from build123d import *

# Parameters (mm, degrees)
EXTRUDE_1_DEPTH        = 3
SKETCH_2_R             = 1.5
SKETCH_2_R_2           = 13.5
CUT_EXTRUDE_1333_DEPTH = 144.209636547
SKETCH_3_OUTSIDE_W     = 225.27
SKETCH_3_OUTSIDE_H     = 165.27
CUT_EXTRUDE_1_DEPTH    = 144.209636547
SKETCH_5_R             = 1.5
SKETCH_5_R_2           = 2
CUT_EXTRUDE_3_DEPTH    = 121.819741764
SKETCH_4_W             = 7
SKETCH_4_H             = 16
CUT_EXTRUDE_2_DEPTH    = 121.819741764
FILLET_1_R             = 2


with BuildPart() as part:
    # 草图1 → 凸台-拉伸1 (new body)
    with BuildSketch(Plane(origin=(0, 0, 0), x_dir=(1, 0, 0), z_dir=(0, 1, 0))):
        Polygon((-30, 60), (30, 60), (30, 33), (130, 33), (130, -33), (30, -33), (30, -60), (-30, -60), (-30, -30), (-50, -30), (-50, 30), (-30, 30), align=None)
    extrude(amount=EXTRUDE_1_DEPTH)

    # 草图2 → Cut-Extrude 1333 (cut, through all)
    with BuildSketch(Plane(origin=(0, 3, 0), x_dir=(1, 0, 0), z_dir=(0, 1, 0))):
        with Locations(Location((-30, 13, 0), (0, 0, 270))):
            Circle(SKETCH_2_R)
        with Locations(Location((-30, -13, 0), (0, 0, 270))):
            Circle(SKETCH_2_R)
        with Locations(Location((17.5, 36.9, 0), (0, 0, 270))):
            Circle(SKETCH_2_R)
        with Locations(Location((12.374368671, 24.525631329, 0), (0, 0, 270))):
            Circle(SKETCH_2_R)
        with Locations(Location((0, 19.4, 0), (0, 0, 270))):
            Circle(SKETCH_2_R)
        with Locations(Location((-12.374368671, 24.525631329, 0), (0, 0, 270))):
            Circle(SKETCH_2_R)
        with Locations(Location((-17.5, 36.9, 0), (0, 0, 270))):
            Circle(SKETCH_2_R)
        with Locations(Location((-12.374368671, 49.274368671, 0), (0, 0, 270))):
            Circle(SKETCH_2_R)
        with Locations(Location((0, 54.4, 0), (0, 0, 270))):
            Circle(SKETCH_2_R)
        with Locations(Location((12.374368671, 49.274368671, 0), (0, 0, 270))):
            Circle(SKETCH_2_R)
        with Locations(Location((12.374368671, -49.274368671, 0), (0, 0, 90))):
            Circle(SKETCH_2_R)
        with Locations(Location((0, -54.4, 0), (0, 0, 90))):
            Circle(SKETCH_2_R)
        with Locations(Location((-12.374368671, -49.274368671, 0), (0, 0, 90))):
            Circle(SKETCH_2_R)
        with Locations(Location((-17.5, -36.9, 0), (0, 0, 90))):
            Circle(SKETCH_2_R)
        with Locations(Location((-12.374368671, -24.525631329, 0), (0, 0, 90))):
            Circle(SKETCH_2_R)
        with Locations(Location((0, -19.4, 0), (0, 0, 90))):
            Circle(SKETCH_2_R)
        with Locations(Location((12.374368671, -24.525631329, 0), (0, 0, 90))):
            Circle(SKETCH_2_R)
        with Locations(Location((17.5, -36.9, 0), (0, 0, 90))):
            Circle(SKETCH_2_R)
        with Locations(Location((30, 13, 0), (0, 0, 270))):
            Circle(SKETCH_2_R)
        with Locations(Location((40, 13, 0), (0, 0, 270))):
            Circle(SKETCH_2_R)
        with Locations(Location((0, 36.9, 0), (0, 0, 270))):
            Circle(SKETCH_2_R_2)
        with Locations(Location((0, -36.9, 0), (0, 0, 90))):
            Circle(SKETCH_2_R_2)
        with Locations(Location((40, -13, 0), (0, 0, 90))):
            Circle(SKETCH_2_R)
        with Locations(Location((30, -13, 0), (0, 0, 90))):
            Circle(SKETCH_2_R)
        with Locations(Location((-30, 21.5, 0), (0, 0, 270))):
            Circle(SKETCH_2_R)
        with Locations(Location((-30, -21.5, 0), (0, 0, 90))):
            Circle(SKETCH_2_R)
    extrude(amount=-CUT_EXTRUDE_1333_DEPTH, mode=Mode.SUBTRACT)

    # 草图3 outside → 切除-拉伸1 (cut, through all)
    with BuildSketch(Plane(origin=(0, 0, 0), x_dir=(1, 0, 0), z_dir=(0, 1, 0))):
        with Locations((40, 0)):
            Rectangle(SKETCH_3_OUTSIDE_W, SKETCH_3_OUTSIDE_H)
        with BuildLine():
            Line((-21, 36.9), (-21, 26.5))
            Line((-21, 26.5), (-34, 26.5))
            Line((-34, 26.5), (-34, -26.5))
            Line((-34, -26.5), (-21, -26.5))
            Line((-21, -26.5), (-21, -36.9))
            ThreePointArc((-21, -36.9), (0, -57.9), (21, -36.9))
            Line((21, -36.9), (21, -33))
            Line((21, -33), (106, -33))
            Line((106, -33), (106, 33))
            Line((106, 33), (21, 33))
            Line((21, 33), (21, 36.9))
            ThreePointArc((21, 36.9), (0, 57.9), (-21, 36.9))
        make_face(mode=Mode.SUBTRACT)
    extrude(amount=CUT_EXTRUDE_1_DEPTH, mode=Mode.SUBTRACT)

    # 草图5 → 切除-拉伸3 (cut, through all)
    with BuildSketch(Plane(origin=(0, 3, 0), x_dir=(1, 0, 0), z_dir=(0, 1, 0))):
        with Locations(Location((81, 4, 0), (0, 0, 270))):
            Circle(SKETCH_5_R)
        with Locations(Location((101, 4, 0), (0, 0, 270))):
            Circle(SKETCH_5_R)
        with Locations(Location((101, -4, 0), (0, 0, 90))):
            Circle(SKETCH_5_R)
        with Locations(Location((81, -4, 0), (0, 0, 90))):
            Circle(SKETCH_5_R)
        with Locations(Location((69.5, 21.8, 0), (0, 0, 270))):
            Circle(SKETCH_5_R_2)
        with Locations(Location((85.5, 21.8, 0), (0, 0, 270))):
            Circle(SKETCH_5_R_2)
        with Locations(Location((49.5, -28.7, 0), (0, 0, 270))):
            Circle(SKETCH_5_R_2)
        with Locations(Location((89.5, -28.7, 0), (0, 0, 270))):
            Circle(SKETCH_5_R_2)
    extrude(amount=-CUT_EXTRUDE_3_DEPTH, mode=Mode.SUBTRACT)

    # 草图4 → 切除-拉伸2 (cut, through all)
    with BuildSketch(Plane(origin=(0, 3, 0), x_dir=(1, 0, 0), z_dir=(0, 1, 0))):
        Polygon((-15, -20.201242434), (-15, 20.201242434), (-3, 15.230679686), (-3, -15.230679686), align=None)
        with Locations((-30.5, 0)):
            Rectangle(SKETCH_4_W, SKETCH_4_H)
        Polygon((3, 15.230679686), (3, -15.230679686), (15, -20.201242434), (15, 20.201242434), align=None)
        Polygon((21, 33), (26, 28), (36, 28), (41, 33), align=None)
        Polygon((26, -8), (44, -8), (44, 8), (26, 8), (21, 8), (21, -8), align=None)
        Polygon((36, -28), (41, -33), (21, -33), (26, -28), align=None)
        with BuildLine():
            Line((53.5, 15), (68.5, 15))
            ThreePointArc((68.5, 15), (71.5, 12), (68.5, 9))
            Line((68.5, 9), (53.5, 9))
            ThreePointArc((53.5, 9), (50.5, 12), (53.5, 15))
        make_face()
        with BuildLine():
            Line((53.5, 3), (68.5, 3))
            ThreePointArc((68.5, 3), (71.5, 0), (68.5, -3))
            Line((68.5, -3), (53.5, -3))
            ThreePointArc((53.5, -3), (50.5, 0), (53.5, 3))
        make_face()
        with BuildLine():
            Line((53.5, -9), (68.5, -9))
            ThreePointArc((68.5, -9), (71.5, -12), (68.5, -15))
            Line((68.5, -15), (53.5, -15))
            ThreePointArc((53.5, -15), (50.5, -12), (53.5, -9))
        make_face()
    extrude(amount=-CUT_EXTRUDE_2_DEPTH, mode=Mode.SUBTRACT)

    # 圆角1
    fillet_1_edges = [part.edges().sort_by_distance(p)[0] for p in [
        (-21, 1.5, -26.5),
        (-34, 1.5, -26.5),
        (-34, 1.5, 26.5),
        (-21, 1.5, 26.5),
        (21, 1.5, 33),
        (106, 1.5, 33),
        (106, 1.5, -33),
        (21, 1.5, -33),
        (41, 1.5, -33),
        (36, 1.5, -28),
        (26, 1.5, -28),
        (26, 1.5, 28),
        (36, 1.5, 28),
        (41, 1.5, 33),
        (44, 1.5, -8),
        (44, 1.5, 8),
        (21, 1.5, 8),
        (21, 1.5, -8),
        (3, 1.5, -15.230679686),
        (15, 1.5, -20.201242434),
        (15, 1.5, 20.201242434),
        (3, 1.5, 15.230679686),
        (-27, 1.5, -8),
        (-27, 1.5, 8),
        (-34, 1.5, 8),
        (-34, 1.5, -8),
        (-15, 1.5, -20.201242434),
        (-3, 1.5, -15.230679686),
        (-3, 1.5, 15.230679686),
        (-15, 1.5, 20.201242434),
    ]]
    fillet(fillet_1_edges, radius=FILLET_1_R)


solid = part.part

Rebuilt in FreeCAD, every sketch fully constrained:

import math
import FreeCAD as App
import Part
import Sketcher

V = App.Vector
Q = App.Units.Quantity


def edges_at(feature, points):
    """Names of the edges that pass closest to the given points."""
    edges = feature.Shape.Edges
    near = lambda p: min(range(len(edges)), key=lambda i: edges[i].distToShape(Part.Vertex(*p))[0])
    return sorted({f"Edge{near(p) + 1}" for p in points})


def add_polygon(sketch, points):
    """Adds a closed chain of lines whose ends are joined by coincident constraints."""
    first, n = sketch.GeometryCount, len(points)
    for a, b in zip(points, points[1:] + points[:1]):
        sketch.addGeometry(Part.LineSegment(App.Vector(*a, 0), App.Vector(*b, 0)), False)
    for i in range(n):
        sketch.addConstraint(Sketcher.Constraint("Coincident", first + i, 2, first + (i + 1) % n, 1))

doc = App.newDocument("Part")
body = doc.addObject("PartDesign::Body", "Body")

sketch1 = body.newObject("Sketcher::SketchObject", "Sketch")
sketch1.AttachmentSupport = (doc.getObject("XZ_Plane"), [""])
sketch1.MapMode = "FlatFace"
add_polygon(sketch1, [(30, -60), (-30, -60), (-30, -30), (-50, -30), (-50, 30), (-30, 30), (-30, 60), (30, 60), (30, 33), (130, 33), (130, -33), (30, -33)])
sketch1.addConstraint(Sketcher.Constraint("Horizontal", 0))
sketch1.addConstraint(Sketcher.Constraint("Vertical", 1))
sketch1.addConstraint(Sketcher.Constraint("Horizontal", 2))
sketch1.addConstraint(Sketcher.Constraint("Vertical", 3))
sketch1.addConstraint(Sketcher.Constraint("Horizontal", 4))
sketch1.addConstraint(Sketcher.Constraint("Vertical", 5))
sketch1.addConstraint(Sketcher.Constraint("Horizontal", 6))
sketch1.addConstraint(Sketcher.Constraint("Vertical", 7))
sketch1.addConstraint(Sketcher.Constraint("Horizontal", 8))
sketch1.addConstraint(Sketcher.Constraint("Vertical", 9))
sketch1.addConstraint(Sketcher.Constraint("Horizontal", 10))
sketch1.addConstraint(Sketcher.Constraint("Vertical", 11))
sketch1.addConstraint(Sketcher.Constraint("Symmetric", 0, 2, 6, 2, -1, 1))
sketch1.addConstraint(Sketcher.Constraint("Symmetric", 1, 2, 4, 2, -1))
sketch1.addConstraint(Sketcher.Constraint("Symmetric", 7, 2, 10, 2, -1))
sketch1.addConstraint(Sketcher.Constraint("Equal", 6, 3))
sketch1.addConstraint(Sketcher.Constraint("DistanceX", 0, 2, 0, 1, 60.0))
sketch1.addConstraint(Sketcher.Constraint("DistanceX", 2, 2, 2, 1, 20.0))
sketch1.addConstraint(Sketcher.Constraint("DistanceX", 8, 1, 8, 2, 100.0))
sketch1.addConstraint(Sketcher.Constraint("DistanceY", 1, 1, 1, 2, 30.0))
sketch1.addConstraint(Sketcher.Constraint("DistanceY", 7, 2, 7, 1, 27.0))
pad1 = body.newObject("PartDesign::Pad", "Pad")
pad1.Profile = sketch1
pad1.Length = 3
pad1.Reversed = True

sketch2 = body.newObject("Sketcher::SketchObject", "Sketch001")
sketch2.AttachmentSupport = (doc.getObject("XZ_Plane"), [""])
sketch2.MapMode = "FlatFace"
sketch2.AttachmentOffset = App.Placement(V(0, 0, -3), App.Rotation())
sketch2.addGeometry(Part.Circle(V(-30, -13, 0), V(0, 0, 1), 1.5), False)
sketch2.addGeometry(Part.Circle(V(-30, 13, 0), V(0, 0, 1), 1.5), False)
sketch2.addGeometry(Part.Circle(V(17.5, -36.9, 0), V(0, 0, 1), 1.5), False)
sketch2.addGeometry(Part.Circle(V(12.4, -24.5, 0), V(0, 0, 1), 1.5), False)
sketch2.addGeometry(Part.Circle(V(0, -19.4, 0), V(0, 0, 1), 1.5), False)
sketch2.addGeometry(Part.Circle(V(-12.4, -24.5, 0), V(0, 0, 1), 1.5), False)
sketch2.addGeometry(Part.Circle(V(-17.5, -36.9, 0), V(0, 0, 1), 1.5), False)
sketch2.addGeometry(Part.Circle(V(-12.4, -49.3, 0), V(0, 0, 1), 1.5), False)
sketch2.addGeometry(Part.Circle(V(0, -54.4, 0), V(0, 0, 1), 1.5), False)
sketch2.addGeometry(Part.Circle(V(12.4, -49.3, 0), V(0, 0, 1), 1.5), False)
sketch2.addGeometry(Part.Circle(V(12.4, 49.3, 0), V(0, 0, 1), 1.5), False)
sketch2.addGeometry(Part.Circle(V(0, 54.4, 0), V(0, 0, 1), 1.5), False)
sketch2.addGeometry(Part.Circle(V(-12.4, 49.3, 0), V(0, 0, 1), 1.5), False)
sketch2.addGeometry(Part.Circle(V(-17.5, 36.9, 0), V(0, 0, 1), 1.5), False)
sketch2.addGeometry(Part.Circle(V(-12.4, 24.5, 0), V(0, 0, 1), 1.5), False)
sketch2.addGeometry(Part.Circle(V(0, 19.4, 0), V(0, 0, 1), 1.5), False)
sketch2.addGeometry(Part.Circle(V(12.4, 24.5, 0), V(0, 0, 1), 1.5), False)
sketch2.addGeometry(Part.Circle(V(17.5, 36.9, 0), V(0, 0, 1), 1.5), False)
sketch2.addGeometry(Part.Circle(V(30, -13, 0), V(0, 0, 1), 1.5), False)
sketch2.addGeometry(Part.Circle(V(40, -13, 0), V(0, 0, 1), 1.5), False)
sketch2.addGeometry(Part.Circle(V(0, -36.9, 0), V(0, 0, 1), 13.5), False)
sketch2.addGeometry(Part.Circle(V(0, 36.9, 0), V(0, 0, 1), 13.5), False)
sketch2.addGeometry(Part.Circle(V(40, 13, 0), V(0, 0, 1), 1.5), False)
sketch2.addGeometry(Part.Circle(V(30, 13, 0), V(0, 0, 1), 1.5), False)
sketch2.addGeometry(Part.Circle(V(-30, -21.5, 0), V(0, 0, 1), 1.5), False)
sketch2.addGeometry(Part.Circle(V(-30, 21.5, 0), V(0, 0, 1), 1.5), False)
sketch2.addConstraint(Sketcher.Constraint("Equal", 0, 1))
sketch2.addConstraint(Sketcher.Constraint("Equal", 1, 2))
sketch2.addConstraint(Sketcher.Constraint("Equal", 2, 3))
sketch2.addConstraint(Sketcher.Constraint("Equal", 3, 4))
sketch2.addConstraint(Sketcher.Constraint("Equal", 4, 5))
sketch2.addConstraint(Sketcher.Constraint("Equal", 5, 6))
sketch2.addConstraint(Sketcher.Constraint("Equal", 6, 7))
sketch2.addConstraint(Sketcher.Constraint("Equal", 7, 8))
sketch2.addConstraint(Sketcher.Constraint("Equal", 8, 9))
sketch2.addConstraint(Sketcher.Constraint("Equal", 9, 10))
sketch2.addConstraint(Sketcher.Constraint("Equal", 10, 11))
sketch2.addConstraint(Sketcher.Constraint("Equal", 11, 12))
sketch2.addConstraint(Sketcher.Constraint("Equal", 12, 13))
sketch2.addConstraint(Sketcher.Constraint("Equal", 13, 14))
sketch2.addConstraint(Sketcher.Constraint("Equal", 14, 15))
sketch2.addConstraint(Sketcher.Constraint("Equal", 15, 16))
sketch2.addConstraint(Sketcher.Constraint("Equal", 16, 17))
sketch2.addConstraint(Sketcher.Constraint("Equal", 17, 18))
sketch2.addConstraint(Sketcher.Constraint("Equal", 18, 19))
sketch2.addConstraint(Sketcher.Constraint("Equal", 20, 21))
sketch2.addConstraint(Sketcher.Constraint("Equal", 19, 22))
sketch2.addConstraint(Sketcher.Constraint("Equal", 22, 23))
sketch2.addConstraint(Sketcher.Constraint("Equal", 23, 24))
sketch2.addConstraint(Sketcher.Constraint("Equal", 24, 25))
sketch2.addConstraint(Sketcher.Constraint("Symmetric", 7, 3, 10, 3, -1, 1))
sketch2.addConstraint(Sketcher.Constraint("Symmetric", 8, 3, 11, 3, -1, 1))
sketch2.addConstraint(Sketcher.Constraint("Symmetric", 9, 3, 12, 3, -1, 1))
sketch2.addConstraint(Sketcher.Constraint("Symmetric", 2, 3, 13, 3, -1, 1))
sketch2.addConstraint(Sketcher.Constraint("Symmetric", 3, 3, 14, 3, -1, 1))
sketch2.addConstraint(Sketcher.Constraint("Symmetric", 4, 3, 15, 3, -1, 1))
sketch2.addConstraint(Sketcher.Constraint("Symmetric", 5, 3, 16, 3, -1, 1))
sketch2.addConstraint(Sketcher.Constraint("Symmetric", 6, 3, 17, 3, -1, 1))
sketch2.addConstraint(Sketcher.Constraint("Symmetric", 1, 3, 18, 3, -1, 1))
sketch2.addConstraint(Sketcher.Constraint("Symmetric", 20, 3, 21, 3, -1, 1))
sketch2.addConstraint(Sketcher.Constraint("Symmetric", 0, 3, 23, 3, -1, 1))
sketch2.addConstraint(Sketcher.Constraint("Symmetric", 3, 3, 5, 3, -2))
sketch2.addConstraint(Sketcher.Constraint("Symmetric", 2, 3, 6, 3, -2))
sketch2.addConstraint(Sketcher.Constraint("Symmetric", 7, 3, 9, 3, -2))
sketch2.addConstraint(Sketcher.Constraint("Symmetric", 0, 3, 18, 3, -2))
sketch2.addConstraint(Sketcher.Constraint("Symmetric", 19, 3, 22, 3, -1))
sketch2.addConstraint(Sketcher.Constraint("Symmetric", 24, 3, 25, 3, -1))
sketch2.addConstraint(Sketcher.Constraint("PointOnObject", 4, 3, -2))
sketch2.addConstraint(Sketcher.Constraint("PointOnObject", 8, 3, -2))
sketch2.addConstraint(Sketcher.Constraint("PointOnObject", 20, 3, -2))
sketch2.addConstraint(Sketcher.Constraint("Horizontal", 18, 3, 19, 3))
sketch2.addConstraint(Sketcher.Constraint("Horizontal", 6, 3, 20, 3))
sketch2.addConstraint(Sketcher.Constraint("Vertical", 5, 3, 7, 3))
sketch2.addConstraint(Sketcher.Constraint("Vertical", 1, 3, 24, 3))
sketch2.addConstraint(Sketcher.Constraint("Diameter", 0, 3.0))
sketch2.addConstraint(Sketcher.Constraint("Diameter", 20, 27.0))
sketch2.addConstraint(Sketcher.Constraint("DistanceX", 0, 3, -1, 1, 30.0))
sketch2.addConstraint(Sketcher.Constraint("DistanceY", 0, 3, -1, 1, 13.0))
sketch2.addConstraint(Sketcher.Constraint("DistanceX", -1, 1, 19, 3, 40.0))
sketch2.addConstraint(Sketcher.Constraint("DistanceX", 6, 3, 2, 3, 35.0))
sketch2.addConstraint(Sketcher.Constraint("DistanceY", 2, 3, -1, 1, 36.9))
sketch2.addConstraint(Sketcher.Constraint("DistanceY", 4, 3, -1, 1, 19.4))
sketch2.addConstraint(Sketcher.Constraint("DistanceY", 8, 3, -1, 1, 54.4))
sketch2.addConstraint(Sketcher.Constraint("DistanceY", 24, 3, -1, 1, 21.5))
sketch2.addConstraint(Sketcher.Constraint("DistanceY", 3, 3, 10, 3, 73.8))
sketch2.addConstraint(Sketcher.Constraint("DistanceX", -1, 1, 3, 3, 12.374369))
sketch2.addConstraint(Sketcher.Constraint("DistanceY", 3, 3, -1, 1, 24.525631))
pocket1 = body.newObject("PartDesign::Pocket", "Pocket")
pocket1.Profile = sketch2
pocket1.Type = "ThroughAll"
pocket1.Reversed = True

sketch3 = body.newObject("Sketcher::SketchObject", "Sketch002")
sketch3.AttachmentSupport = (doc.getObject("XZ_Plane"), [""])
sketch3.MapMode = "FlatFace"
add_polygon(sketch3, [(-72.6, -82.6), (-72.6, 82.6), (152.6, 82.6), (152.6, -82.6)])
sketch3.addGeometry(Part.LineSegment(V(-21, -26.5, 0), V(-21, -36.9, 0)), False)
sketch3.addGeometry(Part.ArcOfCircle(Part.Circle(V(0, -36.9, 0), V(0, 0, 1), 21), math.radians(180), math.radians(360)), False)
sketch3.addGeometry(Part.LineSegment(V(21, -36.9, 0), V(21, -33, 0)), False)
sketch3.addGeometry(Part.LineSegment(V(21, -33, 0), V(106, -33, 0)), False)
sketch3.addGeometry(Part.LineSegment(V(106, -33, 0), V(106, 33, 0)), False)
sketch3.addGeometry(Part.LineSegment(V(106, 33, 0), V(21, 33, 0)), False)
sketch3.addGeometry(Part.LineSegment(V(21, 33, 0), V(21, 36.9, 0)), False)
sketch3.addGeometry(Part.ArcOfCircle(Part.Circle(V(0, 36.9, 0), V(0, 0, 1), 21), math.radians(0), math.radians(180)), False)
sketch3.addGeometry(Part.LineSegment(V(-21, 36.9, 0), V(-21, 26.5, 0)), False)
sketch3.addGeometry(Part.LineSegment(V(-21, 26.5, 0), V(-34, 26.5, 0)), False)
sketch3.addGeometry(Part.LineSegment(V(-34, 26.5, 0), V(-34, -26.5, 0)), False)
sketch3.addGeometry(Part.LineSegment(V(-34, -26.5, 0), V(-21, -26.5, 0)), False)
sketch3.addConstraint(Sketcher.Constraint("Tangent", 4, 2, 5, 1))
sketch3.addConstraint(Sketcher.Constraint("Tangent", 5, 2, 6, 1))
sketch3.addConstraint(Sketcher.Constraint("Coincident", 6, 2, 7, 1))
sketch3.addConstraint(Sketcher.Constraint("Coincident", 7, 2, 8, 1))
sketch3.addConstraint(Sketcher.Constraint("Coincident", 8, 2, 9, 1))
sketch3.addConstraint(Sketcher.Constraint("Coincident", 9, 2, 10, 1))
sketch3.addConstraint(Sketcher.Constraint("Tangent", 10, 2, 11, 1))
sketch3.addConstraint(Sketcher.Constraint("Tangent", 11, 2, 12, 1))
sketch3.addConstraint(Sketcher.Constraint("Coincident", 12, 2, 13, 1))
sketch3.addConstraint(Sketcher.Constraint("Coincident", 13, 2, 14, 1))
sketch3.addConstraint(Sketcher.Constraint("Coincident", 14, 2, 15, 1))
sketch3.addConstraint(Sketcher.Constraint("Coincident", 15, 2, 4, 1))
sketch3.addConstraint(Sketcher.Constraint("Vertical", 0))
sketch3.addConstraint(Sketcher.Constraint("Horizontal", 1))
sketch3.addConstraint(Sketcher.Constraint("Vertical", 2))
sketch3.addConstraint(Sketcher.Constraint("Horizontal", 3))
sketch3.addConstraint(Sketcher.Constraint("Vertical", 4))
sketch3.addConstraint(Sketcher.Constraint("Vertical", 6))
sketch3.addConstraint(Sketcher.Constraint("Horizontal", 7))
sketch3.addConstraint(Sketcher.Constraint("Vertical", 8))
sketch3.addConstraint(Sketcher.Constraint("Horizontal", 9))
sketch3.addConstraint(Sketcher.Constraint("Vertical", 10))
sketch3.addConstraint(Sketcher.Constraint("Vertical", 12))
sketch3.addConstraint(Sketcher.Constraint("Horizontal", 13))
sketch3.addConstraint(Sketcher.Constraint("Vertical", 14))
sketch3.addConstraint(Sketcher.Constraint("Horizontal", 15))
sketch3.addConstraint(Sketcher.Constraint("Equal", 5, 11))
sketch3.addConstraint(Sketcher.Constraint("Symmetric", 5, 3, 11, 3, -1, 1))
sketch3.addConstraint(Sketcher.Constraint("Symmetric", 6, 2, 9, 2, -1))
sketch3.addConstraint(Sketcher.Constraint("Equal", 4, 12))
sketch3.addConstraint(Sketcher.Constraint("Radius", 5, 21.0))
sketch3.addConstraint(Sketcher.Constraint("DistanceX", 7, 1, 7, 2, 85.0))
sketch3.addConstraint(Sketcher.Constraint("DistanceX", 13, 2, 13, 1, 13.0))
sketch3.addConstraint(Sketcher.Constraint("DistanceY", 8, 1, 8, 2, 66.0))
sketch3.addConstraint(Sketcher.Constraint("DistanceY", 14, 2, 14, 1, 53.0))
sketch3.addConstraint(Sketcher.Constraint("DistanceY", 4, 2, 4, 1, 10.4))
sketch3.addConstraint(Sketcher.Constraint("DistanceX", 1, 1, 1, 2, 225.27))
sketch3.addConstraint(Sketcher.Constraint("DistanceY", 0, 1, 0, 2, 165.27))
sketch3.addConstraint(Sketcher.Constraint("DistanceX", 0, 2, -1, 1, 72.635))
sketch3.addConstraint(Sketcher.Constraint("DistanceY", -1, 1, 0, 2, 82.635))
pocket2 = body.newObject("PartDesign::Pocket", "Pocket001")
pocket2.Profile = sketch3
pocket2.Type = "ThroughAll"

sketch4 = body.newObject("Sketcher::SketchObject", "Sketch003")
sketch4.AttachmentSupport = (doc.getObject("XZ_Plane"), [""])
sketch4.MapMode = "FlatFace"
sketch4.AttachmentOffset = App.Placement(V(0, 0, -3), App.Rotation())
sketch4.addGeometry(Part.Circle(V(81, -4, 0), V(0, 0, 1), 1.5), False)
sketch4.addGeometry(Part.Circle(V(101, -4, 0), V(0, 0, 1), 1.5), False)
sketch4.addGeometry(Part.Circle(V(101, 4, 0), V(0, 0, 1), 1.5), False)
sketch4.addGeometry(Part.Circle(V(81, 4, 0), V(0, 0, 1), 1.5), False)
sketch4.addGeometry(Part.Circle(V(69.5, -21.8, 0), V(0, 0, 1), 2), False)
sketch4.addGeometry(Part.Circle(V(85.5, -21.8, 0), V(0, 0, 1), 2), False)
sketch4.addGeometry(Part.Circle(V(49.5, 28.7, 0), V(0, 0, 1), 2), False)
sketch4.addGeometry(Part.Circle(V(89.5, 28.7, 0), V(0, 0, 1), 2), False)
sketch4.addConstraint(Sketcher.Constraint("Equal", 0, 1))
sketch4.addConstraint(Sketcher.Constraint("Equal", 1, 2))
sketch4.addConstraint(Sketcher.Constraint("Equal", 2, 3))
sketch4.addConstraint(Sketcher.Constraint("Equal", 4, 5))
sketch4.addConstraint(Sketcher.Constraint("Equal", 5, 6))
sketch4.addConstraint(Sketcher.Constraint("Equal", 6, 7))
sketch4.addConstraint(Sketcher.Constraint("Symmetric", 1, 3, 2, 3, -1))
sketch4.addConstraint(Sketcher.Constraint("Symmetric", 0, 3, 3, 3, -1))
sketch4.addConstraint(Sketcher.Constraint("Horizontal", 0, 3, 1, 3))
sketch4.addConstraint(Sketcher.Constraint("Horizontal", 4, 3, 5, 3))
sketch4.addConstraint(Sketcher.Constraint("Horizontal", 6, 3, 7, 3))
sketch4.addConstraint(Sketcher.Constraint("Diameter", 0, 3.0))
sketch4.addConstraint(Sketcher.Constraint("Diameter", 4, 4.0))
sketch4.addConstraint(Sketcher.Constraint("DistanceX", -1, 1, 0, 3, 81.0))
sketch4.addConstraint(Sketcher.Constraint("DistanceY", 0, 3, -1, 1, 4.0))
sketch4.addConstraint(Sketcher.Constraint("DistanceX", -1, 1, 1, 3, 101.0))
sketch4.addConstraint(Sketcher.Constraint("DistanceX", 4, 3, 5, 3, 16.0))
sketch4.addConstraint(Sketcher.Constraint("DistanceX", 6, 3, 4, 3, 20.0))
sketch4.addConstraint(Sketcher.Constraint("DistanceX", 6, 3, 7, 3, 40.0))
sketch4.addConstraint(Sketcher.Constraint("DistanceX", -1, 1, 4, 3, 69.5))
sketch4.addConstraint(Sketcher.Constraint("DistanceY", 4, 3, -1, 1, 21.8))
sketch4.addConstraint(Sketcher.Constraint("DistanceY", -1, 1, 6, 3, 28.7))
pocket3 = body.newObject("PartDesign::Pocket", "Pocket002")
pocket3.Profile = sketch4
pocket3.Type = "ThroughAll"
pocket3.Reversed = True

sketch5 = body.newObject("Sketcher::SketchObject", "Sketch004")
sketch5.AttachmentSupport = (doc.getObject("XZ_Plane"), [""])
sketch5.MapMode = "FlatFace"
sketch5.AttachmentOffset = App.Placement(V(0, 0, -3), App.Rotation())
add_polygon(sketch5, [(-15, -20.2), (-15, 20.2), (-3, 15.2), (-3, -15.2)])
add_polygon(sketch5, [(-34, -8), (-34, 8), (-27, 8), (-27, -8)])
add_polygon(sketch5, [(3, -15.2), (3, 15.2), (15, 20.2), (15, -20.2)])
add_polygon(sketch5, [(21, -33), (26, -28), (36, -28), (41, -33)])
add_polygon(sketch5, [(44, 8), (44, -8), (21, -8), (21, 8)])
add_polygon(sketch5, [(41, 33), (36, 28), (26, 28), (21, 33)])
sketch5.addGeometry(Part.LineSegment(V(68.5, -15, 0), V(53.5, -15, 0)), False)
sketch5.addGeometry(Part.ArcOfCircle(Part.Circle(V(53.5, -12, 0), V(0, 0, 1), 3), math.radians(90), math.radians(270)), False)
sketch5.addGeometry(Part.LineSegment(V(53.5, -9, 0), V(68.5, -9, 0)), False)
sketch5.addGeometry(Part.ArcOfCircle(Part.Circle(V(68.5, -12, 0), V(0, 0, 1), 3), math.radians(-90), math.radians(90)), False)
sketch5.addGeometry(Part.LineSegment(V(68.5, -3, 0), V(53.5, -3, 0)), False)
sketch5.addGeometry(Part.ArcOfCircle(Part.Circle(V(53.5, 0, 0), V(0, 0, 1), 3), math.radians(90), math.radians(270)), False)
sketch5.addGeometry(Part.LineSegment(V(53.5, 3, 0), V(68.5, 3, 0)), False)
sketch5.addGeometry(Part.ArcOfCircle(Part.Circle(V(68.5, 0, 0), V(0, 0, 1), 3), math.radians(-90), math.radians(90)), False)
sketch5.addGeometry(Part.LineSegment(V(68.5, 9, 0), V(53.5, 9, 0)), False)
sketch5.addGeometry(Part.ArcOfCircle(Part.Circle(V(53.5, 12, 0), V(0, 0, 1), 3), math.radians(90), math.radians(270)), False)
sketch5.addGeometry(Part.LineSegment(V(53.5, 15, 0), V(68.5, 15, 0)), False)
sketch5.addGeometry(Part.ArcOfCircle(Part.Circle(V(68.5, 12, 0), V(0, 0, 1), 3), math.radians(-90), math.radians(90)), False)
sketch5.addConstraint(Sketcher.Constraint("Tangent", 24, 2, 25, 2))
sketch5.addConstraint(Sketcher.Constraint("Tangent", 25, 1, 26, 1))
sketch5.addConstraint(Sketcher.Constraint("Tangent", 26, 2, 27, 2))
sketch5.addConstraint(Sketcher.Constraint("Tangent", 27, 1, 24, 1))
sketch5.addConstraint(Sketcher.Constraint("Tangent", 28, 2, 29, 2))
sketch5.addConstraint(Sketcher.Constraint("Tangent", 29, 1, 30, 1))
sketch5.addConstraint(Sketcher.Constraint("Tangent", 30, 2, 31, 2))
sketch5.addConstraint(Sketcher.Constraint("Tangent", 31, 1, 28, 1))
sketch5.addConstraint(Sketcher.Constraint("Tangent", 32, 2, 33, 2))
sketch5.addConstraint(Sketcher.Constraint("Tangent", 33, 1, 34, 1))
sketch5.addConstraint(Sketcher.Constraint("Tangent", 34, 2, 35, 2))
sketch5.addConstraint(Sketcher.Constraint("Tangent", 35, 1, 32, 1))
sketch5.addConstraint(Sketcher.Constraint("Vertical", 0))
sketch5.addConstraint(Sketcher.Constraint("Vertical", 2))
sketch5.addConstraint(Sketcher.Constraint("Vertical", 4))
sketch5.addConstraint(Sketcher.Constraint("Horizontal", 5))
sketch5.addConstraint(Sketcher.Constraint("Vertical", 6))
sketch5.addConstraint(Sketcher.Constraint("Horizontal", 7))
sketch5.addConstraint(Sketcher.Constraint("Vertical", 8))
sketch5.addConstraint(Sketcher.Constraint("Vertical", 10))
sketch5.addConstraint(Sketcher.Constraint("Horizontal", 13))
sketch5.addConstraint(Sketcher.Constraint("Horizontal", 15))
sketch5.addConstraint(Sketcher.Constraint("Vertical", 16))
sketch5.addConstraint(Sketcher.Constraint("Horizontal", 17))
sketch5.addConstraint(Sketcher.Constraint("Vertical", 18))
sketch5.addConstraint(Sketcher.Constraint("Horizontal", 19))
sketch5.addConstraint(Sketcher.Constraint("Horizontal", 21))
sketch5.addConstraint(Sketcher.Constraint("Horizontal", 23))
sketch5.addConstraint(Sketcher.Constraint("Horizontal", 24))
sketch5.addConstraint(Sketcher.Constraint("Horizontal", 26))
sketch5.addConstraint(Sketcher.Constraint("Horizontal", 28))
sketch5.addConstraint(Sketcher.Constraint("Horizontal", 30))
sketch5.addConstraint(Sketcher.Constraint("Horizontal", 32))
sketch5.addConstraint(Sketcher.Constraint("Horizontal", 34))
sketch5.addConstraint(Sketcher.Constraint("Equal", 27, 29))
sketch5.addConstraint(Sketcher.Constraint("Equal", 31, 33))
sketch5.addConstraint(Sketcher.Constraint("Symmetric", 2, 2, 8, 2, -1, 1))
sketch5.addConstraint(Sketcher.Constraint("Symmetric", 3, 2, 9, 2, -1, 1))
sketch5.addConstraint(Sketcher.Constraint("Symmetric", 25, 3, 33, 3, -1))
sketch5.addConstraint(Sketcher.Constraint("Symmetric", 13, 2, 20, 2, -1))
sketch5.addConstraint(Sketcher.Constraint("Symmetric", 15, 2, 22, 2, -1))
sketch5.addConstraint(Sketcher.Constraint("PointOnObject", 29, 3, -1))
sketch5.addConstraint(Sketcher.Constraint("Parallel", 1, 11))
sketch5.addConstraint(Sketcher.Constraint("Perpendicular", 12, 14))
sketch5.addConstraint(Sketcher.Constraint("Perpendicular", 14, 20))
sketch5.addConstraint(Sketcher.Constraint("Perpendicular", 20, 22))
sketch5.addConstraint(Sketcher.Constraint("Horizontal", 1, 2, 8, 2))
sketch5.addConstraint(Sketcher.Constraint("Horizontal", 0, 2, 9, 2))
sketch5.addConstraint(Sketcher.Constraint("Horizontal", 3, 2, 10, 2))
sketch5.addConstraint(Sketcher.Constraint("Horizontal", 7, 2, 16, 2))
sketch5.addConstraint(Sketcher.Constraint("Horizontal", 5, 2, 18, 2))
sketch5.addConstraint(Sketcher.Constraint("Vertical", 25, 3, 29, 3))
sketch5.addConstraint(Sketcher.Constraint("Vertical", 27, 3, 31, 3))
sketch5.addConstraint(Sketcher.Constraint("Vertical", 31, 3, 35, 3))
sketch5.addConstraint(Sketcher.Constraint("Vertical", 15, 2, 17, 2))
sketch5.addConstraint(Sketcher.Constraint("Vertical", 12, 2, 21, 2))
sketch5.addConstraint(Sketcher.Constraint("Radius", 25, 3.0))
sketch5.addConstraint(Sketcher.Constraint("DistanceX", 5, 1, 5, 2, 7.0))
sketch5.addConstraint(Sketcher.Constraint("DistanceX", 13, 1, 13, 2, 10.0))
sketch5.addConstraint(Sketcher.Constraint("DistanceX", 15, 2, 15, 1, 20.0))
sketch5.addConstraint(Sketcher.Constraint("DistanceX", 17, 2, 17, 1, 23.0))
sketch5.addConstraint(Sketcher.Constraint("DistanceX", 24, 2, 24, 1, 15.0))
sketch5.addConstraint(Sketcher.Constraint("DistanceY", 4, 1, 4, 2, 16.0))
sketch5.addConstraint(Sketcher.Constraint("DistanceY", 25, 3, -1, 1, 12.0))
sketch5.addConstraint(Sketcher.Constraint("DistanceX", 0, 2, -1, 1, 15.0))
sketch5.addConstraint(Sketcher.Constraint("DistanceX", 1, 2, -1, 1, 3.0))
sketch5.addConstraint(Sketcher.Constraint("DistanceX", 4, 2, -1, 1, 34.0))
sketch5.addConstraint(Sketcher.Constraint("DistanceY", -1, 1, 4, 2, 8.0))
sketch5.addConstraint(Sketcher.Constraint("DistanceX", -1, 1, 12, 2, 26.0))
sketch5.addConstraint(Sketcher.Constraint("DistanceY", 12, 2, -1, 1, 28.0))
sketch5.addConstraint(Sketcher.Constraint("Angle", 1, Q("-22.5 deg")))
sketch5.addConstraint(Sketcher.Constraint("DistanceX", -1, 1, 25, 3, 53.5))
sketch5.addConstraint(Sketcher.Constraint("DistanceY", 2, 2, 2, 1, 30.461359))
pocket4 = body.newObject("PartDesign::Pocket", "Pocket003")
pocket4.Profile = sketch5
pocket4.Type = "ThroughAll"
pocket4.Reversed = True
doc.recompute()

fillet = body.newObject("PartDesign::Fillet", "Fillet")
fillet.Base = (pocket4, edges_at(pocket4, [
    (-21, 1.5, -26.5),
    (-34, 1.5, -26.5),
    (-34, 1.5, 26.5),
    (-21, 1.5, 26.5),
    (21, 1.5, 33),
    (106, 1.5, 33),
    (106, 1.5, -33),
    (21, 1.5, -33),
    (41, 1.5, -33),
    (36, 1.5, -28),
    (26, 1.5, -28),
    (26, 1.5, 28),
    (36, 1.5, 28),
    (41, 1.5, 33),
    (44, 1.5, -8),
    (44, 1.5, 8),
    (21, 1.5, 8),
    (21, 1.5, -8),
    (3, 1.5, -15.231),
    (15, 1.5, -20.201),
    (15, 1.5, 20.201),
    (3, 1.5, 15.231),
    (-27, 1.5, -8),
    (-27, 1.5, 8),
    (-34, 1.5, 8),
    (-34, 1.5, -8),
    (-15, 1.5, -20.201),
    (-3, 1.5, -15.231),
    (-3, 1.5, 15.231),
    (-15, 1.5, 20.201),
]))
fillet.Radius = 2

doc.recompute()
